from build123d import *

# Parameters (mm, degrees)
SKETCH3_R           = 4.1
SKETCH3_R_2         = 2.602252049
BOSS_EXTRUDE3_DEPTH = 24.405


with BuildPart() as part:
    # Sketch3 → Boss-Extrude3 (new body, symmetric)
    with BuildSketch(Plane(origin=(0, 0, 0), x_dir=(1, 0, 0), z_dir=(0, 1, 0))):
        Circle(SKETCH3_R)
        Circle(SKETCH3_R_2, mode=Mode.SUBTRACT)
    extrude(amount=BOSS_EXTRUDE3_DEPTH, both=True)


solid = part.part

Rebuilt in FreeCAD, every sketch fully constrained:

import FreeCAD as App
import Part
import Sketcher
from FreeCAD import Vector

doc = App.newDocument("Part")
body = doc.addObject("PartDesign::Body", "Body")

# Sketch on XZ plane
sketch1 = body.newObject("Sketcher::SketchObject", "Sketch")
sketch1.AttachmentSupport = (doc.getObject("XZ_Plane"), [""])
sketch1.MapMode = "FlatFace"
sketch1.addGeometry(Part.Circle(Vector(0, 0, 0), Vector(0, 0, 1), 4.1), False)
sketch1.addGeometry(Part.Circle(Vector(0, 0, 0), Vector(0, 0, 1), 2.6), False)
sketch1.addConstraint(Sketcher.Constraint("Coincident", 0, 3, -1, 1))
sketch1.addConstraint(Sketcher.Constraint("Coincident", 1, 3, -1, 1))
sketch1.addConstraint(Sketcher.Constraint("Diameter", 0, 8.2))
sketch1.addConstraint(Sketcher.Constraint("Diameter", 1, 5.204504))
pad1 = body.newObject("PartDesign::Pad", "Pad")
pad1.Profile = sketch1
pad1.Length = 48.81
pad1.Midplane = True

doc.recompute()
